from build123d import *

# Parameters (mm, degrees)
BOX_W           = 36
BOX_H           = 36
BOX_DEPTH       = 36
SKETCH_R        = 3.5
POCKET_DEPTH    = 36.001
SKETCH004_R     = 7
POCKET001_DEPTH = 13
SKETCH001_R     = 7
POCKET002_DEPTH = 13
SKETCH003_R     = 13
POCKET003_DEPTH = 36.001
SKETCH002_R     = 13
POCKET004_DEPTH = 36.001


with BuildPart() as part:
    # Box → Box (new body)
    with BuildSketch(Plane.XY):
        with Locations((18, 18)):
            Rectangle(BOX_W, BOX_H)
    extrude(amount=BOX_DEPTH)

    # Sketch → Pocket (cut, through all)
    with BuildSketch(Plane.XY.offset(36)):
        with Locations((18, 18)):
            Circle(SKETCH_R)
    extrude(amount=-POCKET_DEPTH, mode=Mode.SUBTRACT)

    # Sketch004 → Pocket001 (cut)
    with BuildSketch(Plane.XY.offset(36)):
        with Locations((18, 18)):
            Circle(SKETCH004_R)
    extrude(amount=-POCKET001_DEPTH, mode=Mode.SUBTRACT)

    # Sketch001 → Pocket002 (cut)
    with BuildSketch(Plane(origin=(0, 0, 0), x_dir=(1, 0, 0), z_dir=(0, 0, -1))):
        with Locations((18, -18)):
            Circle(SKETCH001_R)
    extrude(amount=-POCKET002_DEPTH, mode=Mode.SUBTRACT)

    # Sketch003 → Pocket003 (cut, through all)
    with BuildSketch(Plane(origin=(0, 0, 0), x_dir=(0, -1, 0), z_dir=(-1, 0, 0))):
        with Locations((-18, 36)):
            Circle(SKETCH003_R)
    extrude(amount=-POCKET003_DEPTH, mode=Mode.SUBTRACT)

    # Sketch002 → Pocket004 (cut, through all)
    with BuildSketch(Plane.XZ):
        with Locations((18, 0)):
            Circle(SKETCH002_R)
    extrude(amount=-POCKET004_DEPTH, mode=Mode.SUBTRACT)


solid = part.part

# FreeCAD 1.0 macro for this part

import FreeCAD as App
import Part
import Sketcher
Q = App.Units.Quantity


def add_polygon(sketch, points):
    """Adds a closed chain of lines whose ends are joined by coincident constraints."""
    first, n = sketch.GeometryCount, len(points)
    for a, b in zip(points, points[1:] + points[:1]):
        sketch.addGeometry(Part.LineSegment(App.Vector(*a, 0), App.Vector(*b, 0)), False)
    for i in range(n):
        sketch.addConstraint(Sketcher.Constraint("Coincident", first + i, 2, first + (i + 1) % n, 1))

doc = App.newDocument("Part")
params = doc.addObject("Spreadsheet::Sheet", "Params")
for row, (alias, value) in enumerate([
    ("sketch1_width", "36 mm"),
    ("pad1_length", "36 mm"),
    ("sketch2_diameter", "7 mm"),
    ("sketch3_diameter", "14 mm"),
    ("pocket2_length", "13 mm"),
    ("sketch4_diameter", "14 mm"),
    ("pocket3_length", "13 mm"),
    ("sketch5_diameter", "26 mm"),
    ("sketch6_diameter", "26 mm"),
], start=1):
    params.set(f"A{row}", alias)
    params.set(f"B{row}", "=" + value)
    params.setAlias(f"B{row}", alias)

body = doc.addObject("PartDesign::Body", "Body")

sketch1 = doc.addObject("Sketcher::SketchObject", "Sketch")
body.addObject(sketch1)
sketch1.AttachmentSupport = (doc.XY_Plane, [""])
sketch1.MapMode = "FlatFace"
add_polygon(sketch1, [(0, 36), (0, 0), (36, 0), (36, 36)])
sketch1.addConstraint([
    Sketcher.Constraint("Vertical", 0),
    Sketcher.Constraint("Horizontal", 1),
    Sketcher.Constraint("Vertical", 2),
    Sketcher.Constraint("Horizontal", 3),
    Sketcher.Constraint("Coincident", 0, 2, -1, 1),
    Sketcher.Constraint("Equal", 3, 0),
    Sketcher.Constraint("DistanceX", 1, 1, 1, 2, Q("36 mm")),
])
sketch1.setExpression("Constraints[10]", "Params.sketch1_width")
pad1 = doc.addObject("PartDesign::Pad", "Pad")
body.addObject(pad1)
pad1.Profile = sketch1
pad1.setExpression("Length", "Params.pad1_length")

sketch2 = doc.addObject("Sketcher::SketchObject", "Sketch001")
body.addObject(sketch2)
sketch2.AttachmentSupport = (doc.XY_Plane, [""])
sketch2.MapMode = "FlatFace"
sketch2.AttachmentOffset = App.Placement(App.Vector(0, 0, 36), App.Rotation())
sketch2.addGeometry(Part.Circle(App.Vector(18, 18, 0), App.Vector(0, 0, 1), 3.5), False)
sketch2.addConstraint([
    Sketcher.Constraint("Diameter", 0, Q("7 mm")),
    Sketcher.Constraint("DistanceX", -1, 1, 0, 3, Q("18 mm")),
    Sketcher.Constraint("DistanceY", -1, 1, 0, 3, Q("18 mm")),
])
sketch2.setExpression("Constraints[0]", "Params.sketch2_diameter")
pocket1 = doc.addObject("PartDesign::Pocket", "Pocket")
body.addObject(pocket1)
pocket1.Profile = sketch2
pocket1.Type = "ThroughAll"

sketch3 = doc.addObject("Sketcher::SketchObject", "Sketch002")
body.addObject(sketch3)
sketch3.AttachmentSupport = (doc.XY_Plane, [""])
sketch3.MapMode = "FlatFace"
sketch3.AttachmentOffset = App.Placement(App.Vector(0, 0, 36), App.Rotation())
sketch3.addGeometry(Part.Circle(App.Vector(18, 18, 0), App.Vector(0, 0, 1), 7), False)
sketch3.addConstraint([
    Sketcher.Constraint("Diameter", 0, Q("14 mm")),
    Sketcher.Constraint("DistanceX", -1, 1, 0, 3, Q("18 mm")),
    Sketcher.Constraint("DistanceY", -1, 1, 0, 3, Q("18 mm")),
])
sketch3.setExpression("Constraints[0]", "Params.sketch3_diameter")
pocket2 = doc.addObject("PartDesign::Pocket", "Pocket001")
body.addObject(pocket2)
pocket2.Profile = sketch3
pocket2.setExpression("Length", "Params.pocket2_length")

sketch4 = doc.addObject("Sketcher::SketchObject", "Sketch003")
body.addObject(sketch4)
sketch4.AttachmentSupport = (doc.XY_Plane, [""])
sketch4.MapMode = "FlatFace"
sketch4.addGeometry(Part.Circle(App.Vector(18, 18, 0), App.Vector(0, 0, 1), 7), False)
sketch4.addConstraint([
    Sketcher.Constraint("Diameter", 0, Q("14 mm")),
    Sketcher.Constraint("DistanceX", -1, 1, 0, 3, Q("18 mm")),
    Sketcher.Constraint("DistanceY", -1, 1, 0, 3, Q("18 mm")),
])
sketch4.setExpression("Constraints[0]", "Params.sketch4_diameter")
pocket3 = doc.addObject("PartDesign::Pocket", "Pocket002")
body.addObject(pocket3)
pocket3.Profile = sketch4
pocket3.setExpression("Length", "Params.pocket3_length")
pocket3.Reversed = True

sketch5 = doc.addObject("Sketcher::SketchObject", "Sketch004")
body.addObject(sketch5)
sketch5.AttachmentSupport = (doc.YZ_Plane, [""])
sketch5.MapMode = "FlatFace"
sketch5.addGeometry(Part.Circle(App.Vector(18, 36, 0), App.Vector(0, 0, 1), 13), False)
sketch5.addConstraint([
    Sketcher.Constraint("Diameter", 0, Q("26 mm")),
    Sketcher.Constraint("DistanceX", -1, 1, 0, 3, Q("18 mm")),
    Sketcher.Constraint("DistanceY", -1, 1, 0, 3, Q("36 mm")),
])
sketch5.setExpression("Constraints[0]", "Params.sketch5_diameter")
pocket4 = doc.addObject("PartDesign::Pocket", "Pocket003")
body.addObject(pocket4)
pocket4.Profile = sketch5
pocket4.Type = "ThroughAll"
pocket4.Reversed = True

sketch6 = doc.addObject("Sketcher::SketchObject", "Sketch005")
body.addObject(sketch6)
sketch6.AttachmentSupport = (doc.XZ_Plane, [""])
sketch6.MapMode = "FlatFace"
sketch6.addGeometry(Part.Circle(App.Vector(18, 0, 0), App.Vector(0, 0, 1), 13), False)
sketch6.addConstraint([
    Sketcher.Constraint("PointOnObject", 0, 3, -1),
    Sketcher.Constraint("Diameter", 0, Q("26 mm")),
    Sketcher.Constraint("DistanceX", -1, 1, 0, 3, Q("18 mm")),
])
sketch6.setExpression("Constraints[1]", "Params.sketch6_diameter")
pocket5 = doc.addObject("PartDesign::Pocket", "Pocket004")
body.addObject(pocket5)
pocket5.Profile = sketch6
pocket5.Type = "ThroughAll"

doc.recompute()
